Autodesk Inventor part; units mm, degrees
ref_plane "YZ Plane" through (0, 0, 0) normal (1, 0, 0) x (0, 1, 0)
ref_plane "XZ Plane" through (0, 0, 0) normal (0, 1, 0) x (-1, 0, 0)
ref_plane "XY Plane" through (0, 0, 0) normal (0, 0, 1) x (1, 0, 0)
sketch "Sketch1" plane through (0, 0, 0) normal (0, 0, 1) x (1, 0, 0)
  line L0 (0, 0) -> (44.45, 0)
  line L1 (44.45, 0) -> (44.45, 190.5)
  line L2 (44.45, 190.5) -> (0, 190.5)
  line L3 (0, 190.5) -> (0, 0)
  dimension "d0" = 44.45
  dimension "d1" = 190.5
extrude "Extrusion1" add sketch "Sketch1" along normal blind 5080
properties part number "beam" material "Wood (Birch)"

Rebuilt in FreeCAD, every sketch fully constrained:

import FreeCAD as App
import Part
import Sketcher
Q = App.Units.Quantity

doc = App.newDocument("Part")
body = doc.addObject("PartDesign::Body", "Body")

sketch1 = doc.addObject("Sketcher::SketchObject", "Sketch")
body.addObject(sketch1)
sketch1.AttachmentSupport = (doc.XY_Plane, [""])
sketch1.MapMode = "FlatFace"
sketch1.addGeometry([
    Part.LineSegment(App.Vector(0, 190, 0), App.Vector(0, 0, 0)),
    Part.LineSegment(App.Vector(0, 0, 0), App.Vector(44, 0, 0)),
    Part.LineSegment(App.Vector(44, 0, 0), App.Vector(44, 190, 0)),
    Part.LineSegment(App.Vector(44, 190, 0), App.Vector(0, 190, 0)),
], False)
sketch1.addConstraint([
    Sketcher.Constraint("Coincident", 0, 2, 1, 1),
    Sketcher.Constraint("Coincident", 1, 2, 2, 1),
    Sketcher.Constraint("Coincident", 2, 2, 3, 1),
    Sketcher.Constraint("Coincident", 3, 2, 0, 1),
    Sketcher.Constraint("Vertical", 0),
    Sketcher.Constraint("Horizontal", 1),
    Sketcher.Constraint("Vertical", 2),
    Sketcher.Constraint("Horizontal", 3),
    Sketcher.Constraint("Coincident", 0, 2, -1, 1),
    Sketcher.Constraint("DistanceY", 0, 2, 0, 1, Q("7.5 in")),
    Sketcher.Constraint("DistanceX", 1, 1, 1, 2, Q("1.75 in")),
])
pad1 = doc.addObject("PartDesign::Pad", "Pad")
body.addObject(pad1)
pad1.Profile = sketch1
pad1.Length = Q("200 in")

doc.recompute()
